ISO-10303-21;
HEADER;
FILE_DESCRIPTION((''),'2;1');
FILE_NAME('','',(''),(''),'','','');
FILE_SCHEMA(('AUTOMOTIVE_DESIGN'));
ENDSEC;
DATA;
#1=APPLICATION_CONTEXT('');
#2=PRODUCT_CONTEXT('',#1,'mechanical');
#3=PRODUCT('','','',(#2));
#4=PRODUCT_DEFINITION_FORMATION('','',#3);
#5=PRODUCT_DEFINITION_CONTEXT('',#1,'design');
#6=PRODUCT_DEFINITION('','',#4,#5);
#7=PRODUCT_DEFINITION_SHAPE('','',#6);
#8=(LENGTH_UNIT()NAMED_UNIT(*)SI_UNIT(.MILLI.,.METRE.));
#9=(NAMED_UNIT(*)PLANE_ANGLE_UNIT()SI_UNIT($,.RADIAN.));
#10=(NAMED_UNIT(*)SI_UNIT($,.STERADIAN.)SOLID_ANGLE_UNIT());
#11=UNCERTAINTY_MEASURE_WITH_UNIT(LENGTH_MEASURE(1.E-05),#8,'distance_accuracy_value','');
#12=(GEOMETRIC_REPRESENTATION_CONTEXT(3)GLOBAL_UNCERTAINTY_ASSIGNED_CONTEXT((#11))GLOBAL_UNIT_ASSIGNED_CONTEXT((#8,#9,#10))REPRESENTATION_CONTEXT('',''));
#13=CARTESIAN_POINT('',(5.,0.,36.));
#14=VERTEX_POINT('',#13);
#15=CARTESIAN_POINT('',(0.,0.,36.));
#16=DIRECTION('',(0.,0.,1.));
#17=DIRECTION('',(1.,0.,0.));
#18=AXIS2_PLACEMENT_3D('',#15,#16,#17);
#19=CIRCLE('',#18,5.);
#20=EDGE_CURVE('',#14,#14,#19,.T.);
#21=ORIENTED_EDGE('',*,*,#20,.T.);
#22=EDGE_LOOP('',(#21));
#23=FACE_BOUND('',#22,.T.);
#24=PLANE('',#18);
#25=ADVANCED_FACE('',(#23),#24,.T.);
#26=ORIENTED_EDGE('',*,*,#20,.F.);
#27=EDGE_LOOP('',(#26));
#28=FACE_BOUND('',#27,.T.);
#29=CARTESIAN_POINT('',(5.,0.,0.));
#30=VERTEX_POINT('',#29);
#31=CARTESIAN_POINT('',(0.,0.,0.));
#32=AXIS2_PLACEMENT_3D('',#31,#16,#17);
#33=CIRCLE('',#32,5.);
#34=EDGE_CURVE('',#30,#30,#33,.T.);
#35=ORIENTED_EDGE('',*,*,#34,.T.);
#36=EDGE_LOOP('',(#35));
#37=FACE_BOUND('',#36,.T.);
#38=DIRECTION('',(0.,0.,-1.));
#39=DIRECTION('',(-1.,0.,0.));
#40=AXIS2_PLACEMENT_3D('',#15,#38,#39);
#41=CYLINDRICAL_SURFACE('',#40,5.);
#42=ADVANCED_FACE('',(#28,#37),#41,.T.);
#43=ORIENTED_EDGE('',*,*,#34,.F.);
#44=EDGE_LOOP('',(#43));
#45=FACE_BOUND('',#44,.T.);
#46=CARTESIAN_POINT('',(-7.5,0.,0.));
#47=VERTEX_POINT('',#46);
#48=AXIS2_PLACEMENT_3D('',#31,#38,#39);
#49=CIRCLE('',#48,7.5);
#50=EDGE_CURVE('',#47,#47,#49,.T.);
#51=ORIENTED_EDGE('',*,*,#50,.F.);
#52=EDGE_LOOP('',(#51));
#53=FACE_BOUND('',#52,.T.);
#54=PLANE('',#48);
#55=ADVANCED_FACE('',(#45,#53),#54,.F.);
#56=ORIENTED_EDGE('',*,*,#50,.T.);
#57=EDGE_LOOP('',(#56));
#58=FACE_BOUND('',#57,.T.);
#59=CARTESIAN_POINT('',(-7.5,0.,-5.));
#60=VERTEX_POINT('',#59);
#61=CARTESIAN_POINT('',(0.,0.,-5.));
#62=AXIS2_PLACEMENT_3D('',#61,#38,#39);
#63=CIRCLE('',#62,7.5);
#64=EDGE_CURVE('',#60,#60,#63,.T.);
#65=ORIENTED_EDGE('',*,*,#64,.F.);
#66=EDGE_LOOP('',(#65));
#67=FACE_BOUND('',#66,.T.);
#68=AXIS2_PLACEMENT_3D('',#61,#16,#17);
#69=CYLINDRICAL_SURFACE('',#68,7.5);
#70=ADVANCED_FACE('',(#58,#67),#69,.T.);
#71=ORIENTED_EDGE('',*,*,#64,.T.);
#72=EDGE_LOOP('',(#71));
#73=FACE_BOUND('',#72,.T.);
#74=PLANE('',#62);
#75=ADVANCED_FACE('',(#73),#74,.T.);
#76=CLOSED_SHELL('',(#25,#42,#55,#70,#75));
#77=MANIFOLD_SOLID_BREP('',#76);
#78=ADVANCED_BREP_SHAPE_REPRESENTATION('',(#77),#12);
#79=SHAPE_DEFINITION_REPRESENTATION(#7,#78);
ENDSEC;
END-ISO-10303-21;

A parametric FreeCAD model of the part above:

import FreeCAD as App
import Part
import Sketcher
Q = App.Units.Quantity

doc = App.newDocument("Part")
body = doc.addObject("PartDesign::Body", "Body")

# Sketch on XY plane
sketch1 = body.newObject("Sketcher::SketchObject", "Sketch")
sketch1.AttachmentSupport = (doc.getObject("XY_Plane"), [""])
sketch1.MapMode = "FlatFace"
sketch1.addGeometry(Part.Circle(App.Vector(0, 0, 0), App.Vector(0, 0, 1), 5), False)
sketch1.addConstraint(Sketcher.Constraint("Coincident", 0, 3, -1, 1))
sketch1.addConstraint(Sketcher.Constraint("Diameter", 0, Q("10 mm")))
pad1 = body.newObject("PartDesign::Pad", "Pad")
pad1.Profile = sketch1
pad1.Length = 36

# Sketch on XY plane
sketch2 = body.newObject("Sketcher::SketchObject", "Sketch001")
sketch2.AttachmentSupport = (doc.getObject("XY_Plane"), [""])
sketch2.MapMode = "FlatFace"
sketch2.addGeometry(Part.Circle(App.Vector(0, 0, 0), App.Vector(0, 0, 1), 7.5), False)
sketch2.addConstraint(Sketcher.Constraint("Coincident", 0, 3, -1, 1))
sketch2.addConstraint(Sketcher.Constraint("Diameter", 0, Q("15 mm")))
pad2 = body.newObject("PartDesign::Pad", "Pad001")
pad2.Profile = sketch2
pad2.Length = 5
pad2.Reversed = True

doc.recompute()
